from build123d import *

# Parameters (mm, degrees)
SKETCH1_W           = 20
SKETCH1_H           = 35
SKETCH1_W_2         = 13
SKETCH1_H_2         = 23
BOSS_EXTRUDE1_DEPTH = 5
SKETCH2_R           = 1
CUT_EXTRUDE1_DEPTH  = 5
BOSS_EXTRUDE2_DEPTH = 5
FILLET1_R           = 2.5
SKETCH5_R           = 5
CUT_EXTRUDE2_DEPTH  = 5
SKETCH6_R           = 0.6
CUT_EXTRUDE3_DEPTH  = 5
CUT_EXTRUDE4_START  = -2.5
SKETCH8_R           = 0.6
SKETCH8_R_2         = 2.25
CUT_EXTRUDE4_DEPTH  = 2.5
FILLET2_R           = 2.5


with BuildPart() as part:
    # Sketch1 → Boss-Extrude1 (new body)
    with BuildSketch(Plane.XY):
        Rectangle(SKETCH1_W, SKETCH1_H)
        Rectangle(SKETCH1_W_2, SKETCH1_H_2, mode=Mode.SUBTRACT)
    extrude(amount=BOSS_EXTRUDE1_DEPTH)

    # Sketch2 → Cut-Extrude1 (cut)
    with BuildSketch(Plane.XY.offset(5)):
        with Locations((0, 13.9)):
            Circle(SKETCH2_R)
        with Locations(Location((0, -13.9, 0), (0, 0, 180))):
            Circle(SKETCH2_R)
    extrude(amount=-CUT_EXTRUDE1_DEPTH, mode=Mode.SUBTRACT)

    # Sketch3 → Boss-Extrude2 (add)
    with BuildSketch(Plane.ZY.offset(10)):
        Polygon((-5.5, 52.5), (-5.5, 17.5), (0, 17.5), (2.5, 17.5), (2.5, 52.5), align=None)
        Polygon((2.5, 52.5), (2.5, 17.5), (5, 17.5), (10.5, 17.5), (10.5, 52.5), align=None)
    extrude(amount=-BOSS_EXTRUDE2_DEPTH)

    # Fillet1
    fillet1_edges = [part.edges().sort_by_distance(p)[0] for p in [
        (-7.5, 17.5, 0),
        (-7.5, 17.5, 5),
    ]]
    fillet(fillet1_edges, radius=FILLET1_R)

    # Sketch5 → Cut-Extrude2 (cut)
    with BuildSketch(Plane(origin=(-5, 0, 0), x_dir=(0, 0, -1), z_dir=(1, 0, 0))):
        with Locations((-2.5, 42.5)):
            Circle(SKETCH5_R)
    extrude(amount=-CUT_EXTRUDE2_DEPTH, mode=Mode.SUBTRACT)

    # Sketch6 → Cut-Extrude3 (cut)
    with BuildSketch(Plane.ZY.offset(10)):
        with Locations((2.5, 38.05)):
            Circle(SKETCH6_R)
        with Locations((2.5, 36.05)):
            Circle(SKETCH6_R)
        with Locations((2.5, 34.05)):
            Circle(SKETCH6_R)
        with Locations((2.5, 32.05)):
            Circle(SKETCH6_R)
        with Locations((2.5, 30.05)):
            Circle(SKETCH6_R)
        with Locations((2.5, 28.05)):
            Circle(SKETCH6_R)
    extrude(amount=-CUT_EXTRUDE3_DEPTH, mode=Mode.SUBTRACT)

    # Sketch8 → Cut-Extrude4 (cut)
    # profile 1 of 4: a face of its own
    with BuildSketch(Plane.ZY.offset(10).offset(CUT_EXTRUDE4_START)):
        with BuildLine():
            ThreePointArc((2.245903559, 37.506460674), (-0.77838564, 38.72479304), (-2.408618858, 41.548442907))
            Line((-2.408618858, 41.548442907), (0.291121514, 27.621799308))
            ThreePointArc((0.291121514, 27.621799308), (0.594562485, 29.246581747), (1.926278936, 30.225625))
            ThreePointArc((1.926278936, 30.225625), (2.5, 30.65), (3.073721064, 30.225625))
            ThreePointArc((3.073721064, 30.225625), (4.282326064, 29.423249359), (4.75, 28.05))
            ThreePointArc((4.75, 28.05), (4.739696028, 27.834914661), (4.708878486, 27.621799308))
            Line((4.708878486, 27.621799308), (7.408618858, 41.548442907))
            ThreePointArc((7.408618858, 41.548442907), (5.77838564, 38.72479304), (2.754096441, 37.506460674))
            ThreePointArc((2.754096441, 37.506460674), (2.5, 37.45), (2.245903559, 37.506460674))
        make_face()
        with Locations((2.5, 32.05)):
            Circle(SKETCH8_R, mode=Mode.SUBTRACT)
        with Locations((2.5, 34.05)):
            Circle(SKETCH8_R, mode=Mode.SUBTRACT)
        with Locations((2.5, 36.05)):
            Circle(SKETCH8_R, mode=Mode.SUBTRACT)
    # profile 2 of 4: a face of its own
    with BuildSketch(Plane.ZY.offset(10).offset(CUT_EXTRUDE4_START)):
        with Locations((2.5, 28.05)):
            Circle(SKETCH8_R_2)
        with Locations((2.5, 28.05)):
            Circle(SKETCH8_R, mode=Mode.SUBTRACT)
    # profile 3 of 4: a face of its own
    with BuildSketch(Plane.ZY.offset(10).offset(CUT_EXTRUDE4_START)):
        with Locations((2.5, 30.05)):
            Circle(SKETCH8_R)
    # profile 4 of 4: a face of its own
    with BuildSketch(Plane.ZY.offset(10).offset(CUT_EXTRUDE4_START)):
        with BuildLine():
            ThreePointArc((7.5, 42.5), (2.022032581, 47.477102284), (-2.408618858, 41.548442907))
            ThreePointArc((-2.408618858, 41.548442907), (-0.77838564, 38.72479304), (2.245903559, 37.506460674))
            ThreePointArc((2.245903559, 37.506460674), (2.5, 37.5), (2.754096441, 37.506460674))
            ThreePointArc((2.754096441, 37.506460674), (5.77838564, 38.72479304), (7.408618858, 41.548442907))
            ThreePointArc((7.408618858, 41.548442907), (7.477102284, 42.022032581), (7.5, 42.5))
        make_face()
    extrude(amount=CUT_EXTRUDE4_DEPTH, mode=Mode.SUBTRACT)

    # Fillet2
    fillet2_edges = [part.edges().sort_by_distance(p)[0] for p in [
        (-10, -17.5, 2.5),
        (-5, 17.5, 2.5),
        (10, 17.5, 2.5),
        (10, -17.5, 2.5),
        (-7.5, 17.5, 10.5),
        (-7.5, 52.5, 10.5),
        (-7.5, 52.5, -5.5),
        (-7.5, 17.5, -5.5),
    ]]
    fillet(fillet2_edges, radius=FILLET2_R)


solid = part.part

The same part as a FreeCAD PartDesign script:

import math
import FreeCAD as App
import Part
import Sketcher

V = App.Vector
Q = App.Units.Quantity


def edges_at(feature, points):
    """Names of the edges that pass closest to the given points."""
    edges = feature.Shape.Edges
    near = lambda p: min(range(len(edges)), key=lambda i: edges[i].distToShape(Part.Vertex(*p))[0])
    return sorted({f"Edge{near(p) + 1}" for p in points})

doc = App.newDocument("Part")
params = doc.addObject("Spreadsheet::Sheet", "Params")
for row, (alias, value) in enumerate([
    ("sketch1_width", "20 mm"),
    ("sketch1_width2", "13 mm"),
    ("sketch1_height", "35 mm"),
    ("sketch1_height2", "23 mm"),
    ("pad1_length", "5 mm"),
    ("sketch2_diameter", "2 mm"),
    ("pocket1_length", "5 mm"),
    ("sketch3_width", "35 mm"),
    ("sketch3_height", "16 mm"),
    ("pad2_length", "5 mm"),
    ("fillet_radius", "2.5 mm"),
    ("sketch4_diameter", "10 mm"),
    ("pocket2_length", "5 mm"),
    ("sketch5_diameter", "1.2 mm"),
    ("pocket3_length", "5 mm"),
    ("sketch6_radius", "5 mm"),
    ("sketch6_diameter", "1.2 mm"),
    ("sketch6_radius2", "2.25 mm"),
    ("pocket4_length", "2.5 mm"),
    ("fillet2_radius", "2.5 mm"),
], start=1):
    params.set(f"A{row}", alias)
    params.set(f"B{row}", "=" + value)
    params.setAlias(f"B{row}", alias)

body = doc.addObject("PartDesign::Body", "Body")

# Sketch on XY plane
sketch1 = doc.addObject("Sketcher::SketchObject", "Sketch")
body.addObject(sketch1)
sketch1.AttachmentSupport = (doc.XY_Plane, [""])
sketch1.MapMode = "FlatFace"
sketch1.addGeometry(Part.LineSegment(V(-10, 18, 0), V(-10, -18, 0)), False)
sketch1.addGeometry(Part.LineSegment(V(-10, -18, 0), V(10, -18, 0)), False)
sketch1.addGeometry(Part.LineSegment(V(10, -18, 0), V(10, 18, 0)), False)
sketch1.addGeometry(Part.LineSegment(V(10, 18, 0), V(-10, 18, 0)), False)
sketch1.addGeometry(Part.LineSegment(V(6, -12, 0), V(-6, -12, 0)), False)
sketch1.addGeometry(Part.LineSegment(V(-6, -12, 0), V(-6, 12, 0)), False)
sketch1.addGeometry(Part.LineSegment(V(-6, 12, 0), V(6, 12, 0)), False)
sketch1.addGeometry(Part.LineSegment(V(6, 12, 0), V(6, -12, 0)), False)
sketch1.addConstraint(Sketcher.Constraint("Coincident", 0, 2, 1, 1))
sketch1.addConstraint(Sketcher.Constraint("Coincident", 1, 2, 2, 1))
sketch1.addConstraint(Sketcher.Constraint("Coincident", 2, 2, 3, 1))
sketch1.addConstraint(Sketcher.Constraint("Coincident", 3, 2, 0, 1))
sketch1.addConstraint(Sketcher.Constraint("Coincident", 4, 2, 5, 1))
sketch1.addConstraint(Sketcher.Constraint("Coincident", 5, 2, 6, 1))
sketch1.addConstraint(Sketcher.Constraint("Coincident", 6, 2, 7, 1))
sketch1.addConstraint(Sketcher.Constraint("Coincident", 7, 2, 4, 1))
sketch1.addConstraint(Sketcher.Constraint("Vertical", 0))
sketch1.addConstraint(Sketcher.Constraint("Horizontal", 1))
sketch1.addConstraint(Sketcher.Constraint("Vertical", 2))
sketch1.addConstraint(Sketcher.Constraint("Horizontal", 3))
sketch1.addConstraint(Sketcher.Constraint("Horizontal", 4))
sketch1.addConstraint(Sketcher.Constraint("Vertical", 5))
sketch1.addConstraint(Sketcher.Constraint("Horizontal", 6))
sketch1.addConstraint(Sketcher.Constraint("Vertical", 7))
sketch1.addConstraint(Sketcher.Constraint("Symmetric", 0, 2, 2, 2, -1, 1))
sketch1.addConstraint(Sketcher.Constraint("Symmetric", 4, 2, 6, 2, -1, 1))
sketch1.addConstraint(Sketcher.Constraint("DistanceX", 1, 1, 1, 2, Q("20 mm")))
sketch1.addConstraint(Sketcher.Constraint("DistanceX", 4, 2, 4, 1, Q("13 mm")))
sketch1.addConstraint(Sketcher.Constraint("DistanceY", 0, 2, 0, 1, Q("35 mm")))
sketch1.addConstraint(Sketcher.Constraint("DistanceY", 5, 1, 5, 2, Q("23 mm")))
sketch1.setExpression("Constraints[18]", "Params.sketch1_width")
sketch1.setExpression("Constraints[19]", "Params.sketch1_width2")
sketch1.setExpression("Constraints[20]", "Params.sketch1_height")
sketch1.setExpression("Constraints[21]", "Params.sketch1_height2")
pad1 = doc.addObject("PartDesign::Pad", "Pad")
body.addObject(pad1)
pad1.Profile = sketch1
pad1.setExpression("Length", "Params.pad1_length")

# Sketch on XY plane
sketch2 = doc.addObject("Sketcher::SketchObject", "Sketch001")
body.addObject(sketch2)
sketch2.AttachmentSupport = (doc.XY_Plane, [""])
sketch2.MapMode = "FlatFace"
sketch2.AttachmentOffset = App.Placement(V(0, 0, 5), App.Rotation())
sketch2.addGeometry(Part.Circle(V(0, 13.9, 0), V(0, 0, 1), 1), False)
sketch2.addGeometry(Part.Circle(V(0, -13.9, 0), V(0, 0, 1), 1), False)
sketch2.addConstraint(Sketcher.Constraint("Equal", 0, 1))
sketch2.addConstraint(Sketcher.Constraint("Symmetric", 0, 3, 1, 3, -1, 1))
sketch2.addConstraint(Sketcher.Constraint("PointOnObject", 0, 3, -2))
sketch2.addConstraint(Sketcher.Constraint("Diameter", 0, Q("2 mm")))
sketch2.addConstraint(Sketcher.Constraint("DistanceY", -1, 1, 0, 3, Q("13.9 mm")))
sketch2.setExpression("Constraints[3]", "Params.sketch2_diameter")
pocket1 = doc.addObject("PartDesign::Pocket", "Pocket")
body.addObject(pocket1)
pocket1.Profile = sketch2
pocket1.setExpression("Length", "Params.pocket1_length")

# Sketch on YZ plane
sketch3 = doc.addObject("Sketcher::SketchObject", "Sketch002")
body.addObject(sketch3)
sketch3.AttachmentSupport = (doc.YZ_Plane, [""])
sketch3.MapMode = "FlatFace"
sketch3.AttachmentOffset = App.Placement(V(0, 0, -10), App.Rotation())
sketch3.addGeometry(Part.LineSegment(V(52, -6, 0), V(18, -6, 0)), False)
sketch3.addGeometry(Part.LineSegment(V(18, -6, 0), V(18, 10, 0)), False)
sketch3.addGeometry(Part.LineSegment(V(18, 10, 0), V(52, 10, 0)), False)
sketch3.addGeometry(Part.LineSegment(V(52, 10, 0), V(52, -6, 0)), False)
sketch3.addConstraint(Sketcher.Constraint("Coincident", 0, 2, 1, 1))
sketch3.addConstraint(Sketcher.Constraint("Coincident", 1, 2, 2, 1))
sketch3.addConstraint(Sketcher.Constraint("Coincident", 2, 2, 3, 1))
sketch3.addConstraint(Sketcher.Constraint("Coincident", 3, 2, 0, 1))
sketch3.addConstraint(Sketcher.Constraint("Horizontal", 0))
sketch3.addConstraint(Sketcher.Constraint("Vertical", 1))
sketch3.addConstraint(Sketcher.Constraint("Horizontal", 2))
sketch3.addConstraint(Sketcher.Constraint("Vertical", 3))
sketch3.addConstraint(Sketcher.Constraint("DistanceX", 0, 2, 0, 1, Q("35 mm")))
sketch3.addConstraint(Sketcher.Constraint("DistanceY", 1, 1, 1, 2, Q("16 mm")))
sketch3.addConstraint(Sketcher.Constraint("DistanceX", -1, 1, 0, 2, Q("17.5 mm")))
sketch3.addConstraint(Sketcher.Constraint("DistanceY", 0, 2, -1, 1, Q("5.5 mm")))
sketch3.setExpression("Constraints[8]", "Params.sketch3_width")
sketch3.setExpression("Constraints[9]", "Params.sketch3_height")
pad2 = doc.addObject("PartDesign::Pad", "Pad001")
body.addObject(pad2)
pad2.Profile = sketch3
pad2.setExpression("Length", "Params.pad2_length")
doc.recompute()

fillet = doc.addObject("PartDesign::Fillet", "Fillet")
body.addObject(fillet)
fillet.Base = (pad2, edges_at(pad2, [(-7.5, 17.5, 0), (-7.5, 17.5, 5)]))
fillet.setExpression("Radius", "Params.fillet_radius")

# Sketch on YZ plane
sketch4 = doc.addObject("Sketcher::SketchObject", "Sketch003")
body.addObject(sketch4)
sketch4.AttachmentSupport = (doc.YZ_Plane, [""])
sketch4.MapMode = "FlatFace"
sketch4.AttachmentOffset = App.Placement(V(0, 0, -5), App.Rotation())
sketch4.addGeometry(Part.Circle(V(42, 2, 0), V(0, 0, 1), 5), False)
sketch4.addConstraint(Sketcher.Constraint("Diameter", 0, Q("10 mm")))
sketch4.addConstraint(Sketcher.Constraint("DistanceX", -1, 1, 0, 3, Q("42.5 mm")))
sketch4.addConstraint(Sketcher.Constraint("DistanceY", -1, 1, 0, 3, Q("2.5 mm")))
sketch4.setExpression("Constraints[0]", "Params.sketch4_diameter")
pocket2 = doc.addObject("PartDesign::Pocket", "Pocket001")
body.addObject(pocket2)
pocket2.Profile = sketch4
pocket2.setExpression("Length", "Params.pocket2_length")

# Sketch on YZ plane
sketch5 = doc.addObject("Sketcher::SketchObject", "Sketch004")
body.addObject(sketch5)
sketch5.AttachmentSupport = (doc.YZ_Plane, [""])
sketch5.MapMode = "FlatFace"
sketch5.AttachmentOffset = App.Placement(V(0, 0, -10), App.Rotation())
sketch5.addGeometry(Part.Circle(V(38, 2.5, 0), V(0, 0, 1), 0.6), False)
sketch5.addGeometry(Part.Circle(V(36, 2.5, 0), V(0, 0, 1), 0.6), False)
sketch5.addGeometry(Part.Circle(V(34, 2.5, 0), V(0, 0, 1), 0.6), False)
sketch5.addGeometry(Part.Circle(V(32, 2.5, 0), V(0, 0, 1), 0.6), False)
sketch5.addGeometry(Part.Circle(V(30.1, 2.5, 0), V(0, 0, 1), 0.6), False)
sketch5.addGeometry(Part.Circle(V(28.1, 2.5, 0), V(0, 0, 1), 0.6), False)
sketch5.addConstraint(Sketcher.Constraint("Equal", 0, 1))
sketch5.addConstraint(Sketcher.Constraint("Equal", 1, 2))
sketch5.addConstraint(Sketcher.Constraint("Equal", 2, 3))
sketch5.addConstraint(Sketcher.Constraint("Equal", 3, 4))
sketch5.addConstraint(Sketcher.Constraint("Equal", 4, 5))
sketch5.addConstraint(Sketcher.Constraint("Horizontal", 0, 3, 1, 3))
sketch5.addConstraint(Sketcher.Constraint("Horizontal", 1, 3, 2, 3))
sketch5.addConstraint(Sketcher.Constraint("Horizontal", 2, 3, 3, 3))
sketch5.addConstraint(Sketcher.Constraint("Horizontal", 3, 3, 4, 3))
sketch5.addConstraint(Sketcher.Constraint("Horizontal", 4, 3, 5, 3))
sketch5.addConstraint(Sketcher.Constraint("Diameter", 0, Q("1.2 mm")))
sketch5.addConstraint(Sketcher.Constraint("DistanceX", 1, 3, 0, 3, Q("2 mm")))
sketch5.addConstraint(Sketcher.Constraint("DistanceX", 2, 3, 1, 3, Q("2 mm")))
sketch5.addConstraint(Sketcher.Constraint("DistanceX", 3, 3, 2, 3, Q("2 mm")))
sketch5.addConstraint(Sketcher.Constraint("DistanceX", 4, 3, 3, 3, Q("2 mm")))
sketch5.addConstraint(Sketcher.Constraint("DistanceX", 5, 3, 4, 3, Q("2 mm")))
sketch5.addConstraint(Sketcher.Constraint("DistanceY", -1, 1, 0, 3, Q("2.5 mm")))
sketch5.addConstraint(Sketcher.Constraint("DistanceX", -1, 1, 0, 3, Q("38.05 mm")))
sketch5.setExpression("Constraints[10]", "Params.sketch5_diameter")
pocket3 = doc.addObject("PartDesign::Pocket", "Pocket002")
body.addObject(pocket3)
pocket3.Profile = sketch5
pocket3.setExpression("Length", "Params.pocket3_length")
pocket3.Reversed = True

# Sketch on YZ plane
sketch6 = doc.addObject("Sketcher::SketchObject", "Sketch005")
body.addObject(sketch6)
sketch6.AttachmentSupport = (doc.YZ_Plane, [""])
sketch6.MapMode = "FlatFace"
sketch6.AttachmentOffset = App.Placement(V(0, 0, -7.5), App.Rotation())
sketch6.addGeometry(Part.LineSegment(V(41.5, -2.4, 0), V(27.6, 0.3, 0)), False)
sketch6.addGeometry(Part.ArcOfCircle(Part.Circle(V(28.1, 2.5, 0), V(0, 0, 1), 2.2), math.radians(101), math.radians(259)), False)
sketch6.addGeometry(Part.LineSegment(V(27.6, 4.7, 0), V(41.5, 7.4, 0)), False)
sketch6.addGeometry(Part.ArcOfCircle(Part.Circle(V(42.5, 2.5, 0), V(0, 0, 1), 5), math.radians(90), math.radians(100.97)), False)
sketch6.addGeometry(Part.ArcOfCircle(Part.Circle(V(42.5, 2.5, 0), V(0, 0, 1), 5), math.radians(-101), math.radians(90)), False)
sketch6.addGeometry(Part.ArcOfCircle(Part.Circle(V(38.1, 2.5, 0), V(0, 0, 1), 0.6), math.radians(155), math.radians(205)), False)
sketch6.addGeometry(Part.ArcOfCircle(Part.Circle(V(42.5, 2.5, 0), V(0, 0, 1), 5), math.radians(177.09), math.radians(182.91)), False)
sketch6.addGeometry(Part.Circle(V(32, 2.5, 0), V(0, 0, 1), 0.6), False)
sketch6.addGeometry(Part.Circle(V(34, 2.5, 0), V(0, 0, 1), 0.6), False)
sketch6.addGeometry(Part.Circle(V(36, 2.5, 0), V(0, 0, 1), 0.6), False)
sketch6.addGeometry(Part.Circle(V(28.1, 2.5, 0), V(0, 0, 1), 0.6), False)
sketch6.addConstraint(Sketcher.Constraint("Tangent", 0, 2, 1, 2))
sketch6.addConstraint(Sketcher.Constraint("Tangent", 1, 1, 2, 1))
sketch6.addConstraint(Sketcher.Constraint("Tangent", 2, 2, 3, 2))
sketch6.addConstraint(Sketcher.Constraint("Tangent", 3, 1, 4, 2))
sketch6.addConstraint(Sketcher.Constraint("Tangent", 4, 1, 0, 1))
sketch6.addConstraint(Sketcher.Constraint("Coincident", 5, 1, 6, 1))
sketch6.addConstraint(Sketcher.Constraint("Coincident", 6, 2, 5, 2))
sketch6.addConstraint(Sketcher.Constraint("Coincident", 6, 3, 3, 3))
sketch6.addConstraint(Sketcher.Constraint("Coincident", 10, 3, 1, 3))
sketch6.addConstraint(Sketcher.Constraint("Equal", 3, 4))
sketch6.addConstraint(Sketcher.Constraint("Equal", 4, 6))
sketch6.addConstraint(Sketcher.Constraint("Equal", 5, 7))
sketch6.addConstraint(Sketcher.Constraint("Equal", 7, 8))
sketch6.addConstraint(Sketcher.Constraint("Equal", 8, 9))
sketch6.addConstraint(Sketcher.Constraint("Equal", 9, 10))
sketch6.addConstraint(Sketcher.Constraint("Horizontal", 1, 3, 3, 3))
sketch6.addConstraint(Sketcher.Constraint("Horizontal", 4, 3, 5, 3))
sketch6.addConstraint(Sketcher.Constraint("Horizontal", 6, 3, 7, 3))
sketch6.addConstraint(Sketcher.Constraint("Horizontal", 7, 3, 8, 3))
sketch6.addConstraint(Sketcher.Constraint("Horizontal", 8, 3, 9, 3))
sketch6.addConstraint(Sketcher.Constraint("Vertical", 6, 3, 3, 1))
sketch6.addConstraint(Sketcher.Constraint("Radius", 3, Q("5 mm")))
sketch6.addConstraint(Sketcher.Constraint("Diameter", 7, Q("1.2 mm")))
sketch6.addConstraint(Sketcher.Constraint("Radius", 1, Q("2.25 mm")))
sketch6.addConstraint(Sketcher.Constraint("DistanceX", 1, 3, 5, 3, Q("10 mm")))
sketch6.addConstraint(Sketcher.Constraint("DistanceX", 1, 3, 7, 3, Q("4 mm")))
sketch6.addConstraint(Sketcher.Constraint("DistanceX", 7, 3, 8, 3, Q("2 mm")))
sketch6.addConstraint(Sketcher.Constraint("DistanceX", 8, 3, 9, 3, Q("2 mm")))
sketch6.addConstraint(Sketcher.Constraint("DistanceY", -1, 1, 1, 3, Q("2.5 mm")))
sketch6.addConstraint(Sketcher.Constraint("DistanceX", -1, 1, 3, 3, Q("42.5 mm")))
sketch6.addConstraint(Sketcher.Constraint("DistanceX", -1, 1, 1, 3, Q("28.05 mm")))
sketch6.setExpression("Constraints[21]", "Params.sketch6_radius")
sketch6.setExpression("Constraints[22]", "Params.sketch6_diameter")
sketch6.setExpression("Constraints[23]", "Params.sketch6_radius2")
pocket4 = doc.addObject("PartDesign::Pocket", "Pocket003")
body.addObject(pocket4)
pocket4.Profile = sketch6
pocket4.setExpression("Length", "Params.pocket4_length")
doc.recompute()

fillet2 = doc.addObject("PartDesign::Fillet", "Fillet001")
body.addObject(fillet2)
fillet2.Base = (pocket4, edges_at(pocket4, [
    (-10, -17.5, 2.5),
    (-5, 17.5, 2.5),
    (10, 17.5, 2.5),
    (10, -17.5, 2.5),
    (-7.5, 17.5, 10.5),
    (-7.5, 52.5, 10.5),
    (-7.5, 52.5, -5.5),
    (-7.5, 17.5, -5.5),
]))
fillet2.setExpression("Radius", "Params.fillet2_radius")

doc.recompute()
